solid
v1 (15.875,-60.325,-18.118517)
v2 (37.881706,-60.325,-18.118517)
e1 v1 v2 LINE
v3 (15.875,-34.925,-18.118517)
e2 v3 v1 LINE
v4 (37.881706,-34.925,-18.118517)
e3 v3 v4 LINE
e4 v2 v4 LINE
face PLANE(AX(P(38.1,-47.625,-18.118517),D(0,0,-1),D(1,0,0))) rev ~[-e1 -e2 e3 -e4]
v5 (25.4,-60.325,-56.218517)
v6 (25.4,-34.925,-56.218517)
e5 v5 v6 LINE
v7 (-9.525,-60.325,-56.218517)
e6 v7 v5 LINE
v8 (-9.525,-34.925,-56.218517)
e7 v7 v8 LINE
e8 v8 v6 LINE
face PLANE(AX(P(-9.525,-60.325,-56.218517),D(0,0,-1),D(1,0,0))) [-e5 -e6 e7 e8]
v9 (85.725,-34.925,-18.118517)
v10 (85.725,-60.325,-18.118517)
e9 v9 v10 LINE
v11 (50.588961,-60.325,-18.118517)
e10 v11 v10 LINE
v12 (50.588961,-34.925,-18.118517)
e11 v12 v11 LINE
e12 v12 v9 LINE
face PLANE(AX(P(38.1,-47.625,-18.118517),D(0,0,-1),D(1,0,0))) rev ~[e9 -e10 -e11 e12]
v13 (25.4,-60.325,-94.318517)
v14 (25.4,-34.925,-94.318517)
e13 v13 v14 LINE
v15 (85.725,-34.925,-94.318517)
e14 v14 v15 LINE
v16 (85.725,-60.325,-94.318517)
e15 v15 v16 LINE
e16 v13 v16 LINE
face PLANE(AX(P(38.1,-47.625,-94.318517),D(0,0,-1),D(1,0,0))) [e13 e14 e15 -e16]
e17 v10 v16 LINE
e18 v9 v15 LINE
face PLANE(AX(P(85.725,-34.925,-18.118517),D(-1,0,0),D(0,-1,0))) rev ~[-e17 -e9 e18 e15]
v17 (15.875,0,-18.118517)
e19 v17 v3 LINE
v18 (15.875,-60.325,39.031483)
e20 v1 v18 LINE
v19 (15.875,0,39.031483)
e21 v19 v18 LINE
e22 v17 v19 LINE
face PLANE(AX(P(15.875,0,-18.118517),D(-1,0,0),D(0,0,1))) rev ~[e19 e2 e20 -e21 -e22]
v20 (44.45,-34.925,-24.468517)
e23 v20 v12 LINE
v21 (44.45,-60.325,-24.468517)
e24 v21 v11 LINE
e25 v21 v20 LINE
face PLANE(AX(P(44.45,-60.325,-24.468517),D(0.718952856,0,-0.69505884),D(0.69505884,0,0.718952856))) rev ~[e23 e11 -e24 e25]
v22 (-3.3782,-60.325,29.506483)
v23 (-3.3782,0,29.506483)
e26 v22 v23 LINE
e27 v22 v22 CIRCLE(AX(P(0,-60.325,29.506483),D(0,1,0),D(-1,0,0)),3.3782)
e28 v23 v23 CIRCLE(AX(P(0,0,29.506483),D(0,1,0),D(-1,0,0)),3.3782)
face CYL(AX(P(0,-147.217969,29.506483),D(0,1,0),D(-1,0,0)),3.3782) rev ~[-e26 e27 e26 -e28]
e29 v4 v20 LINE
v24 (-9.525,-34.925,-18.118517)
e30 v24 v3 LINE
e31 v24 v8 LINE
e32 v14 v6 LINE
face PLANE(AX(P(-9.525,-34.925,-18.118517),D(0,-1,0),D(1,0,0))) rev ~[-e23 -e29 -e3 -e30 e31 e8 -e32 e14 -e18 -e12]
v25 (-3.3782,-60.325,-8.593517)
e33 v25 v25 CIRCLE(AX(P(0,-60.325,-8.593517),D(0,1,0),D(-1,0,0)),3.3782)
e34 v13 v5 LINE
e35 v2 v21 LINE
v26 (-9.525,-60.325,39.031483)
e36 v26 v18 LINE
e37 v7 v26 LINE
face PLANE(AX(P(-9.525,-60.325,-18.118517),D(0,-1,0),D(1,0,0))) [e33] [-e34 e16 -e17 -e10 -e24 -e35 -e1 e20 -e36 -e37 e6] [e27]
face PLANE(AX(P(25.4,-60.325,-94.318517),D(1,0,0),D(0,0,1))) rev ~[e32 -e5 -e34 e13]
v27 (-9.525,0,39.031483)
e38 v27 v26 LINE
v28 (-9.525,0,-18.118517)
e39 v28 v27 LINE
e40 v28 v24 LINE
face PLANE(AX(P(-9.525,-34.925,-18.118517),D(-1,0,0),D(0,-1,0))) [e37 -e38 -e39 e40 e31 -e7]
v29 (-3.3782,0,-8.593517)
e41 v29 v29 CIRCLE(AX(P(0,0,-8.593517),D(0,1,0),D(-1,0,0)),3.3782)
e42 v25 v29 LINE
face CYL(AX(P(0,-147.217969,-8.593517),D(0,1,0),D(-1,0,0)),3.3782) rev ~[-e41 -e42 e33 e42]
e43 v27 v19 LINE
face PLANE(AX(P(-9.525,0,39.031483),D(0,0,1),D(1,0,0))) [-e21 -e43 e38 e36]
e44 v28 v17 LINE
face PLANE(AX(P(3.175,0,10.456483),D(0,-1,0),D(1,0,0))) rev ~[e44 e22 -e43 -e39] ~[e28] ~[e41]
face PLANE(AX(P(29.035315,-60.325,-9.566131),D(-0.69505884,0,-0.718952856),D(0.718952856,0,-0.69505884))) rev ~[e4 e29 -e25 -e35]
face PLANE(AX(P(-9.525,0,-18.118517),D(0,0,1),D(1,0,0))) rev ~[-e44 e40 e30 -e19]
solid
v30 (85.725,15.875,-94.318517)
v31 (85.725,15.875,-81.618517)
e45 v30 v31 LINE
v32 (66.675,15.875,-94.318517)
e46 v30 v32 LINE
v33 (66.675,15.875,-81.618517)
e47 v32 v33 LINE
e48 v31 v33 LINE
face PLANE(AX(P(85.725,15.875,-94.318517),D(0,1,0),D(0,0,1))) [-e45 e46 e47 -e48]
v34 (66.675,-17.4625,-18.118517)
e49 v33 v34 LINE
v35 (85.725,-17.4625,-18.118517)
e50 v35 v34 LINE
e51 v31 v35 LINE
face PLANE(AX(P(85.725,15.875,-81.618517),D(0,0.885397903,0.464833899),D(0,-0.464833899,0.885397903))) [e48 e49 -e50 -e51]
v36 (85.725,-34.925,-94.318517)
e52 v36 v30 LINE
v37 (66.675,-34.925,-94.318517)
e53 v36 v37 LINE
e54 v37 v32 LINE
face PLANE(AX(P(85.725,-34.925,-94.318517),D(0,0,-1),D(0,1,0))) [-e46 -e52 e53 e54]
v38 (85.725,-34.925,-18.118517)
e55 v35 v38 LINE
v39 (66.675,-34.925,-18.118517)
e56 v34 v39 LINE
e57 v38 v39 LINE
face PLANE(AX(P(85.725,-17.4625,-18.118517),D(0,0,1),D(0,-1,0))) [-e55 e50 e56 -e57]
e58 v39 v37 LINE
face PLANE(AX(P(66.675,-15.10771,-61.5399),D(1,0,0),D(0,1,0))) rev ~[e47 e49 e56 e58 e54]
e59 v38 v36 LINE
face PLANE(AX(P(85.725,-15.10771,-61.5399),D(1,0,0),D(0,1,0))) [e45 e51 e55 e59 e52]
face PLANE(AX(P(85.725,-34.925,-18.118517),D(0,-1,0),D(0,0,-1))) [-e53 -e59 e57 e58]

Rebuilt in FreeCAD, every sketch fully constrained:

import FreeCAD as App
import Part
import Sketcher
Q = App.Units.Quantity


def add_polygon(sketch, points):
    """Adds a closed chain of lines whose ends are joined by coincident constraints."""
    first, n = sketch.GeometryCount, len(points)
    for a, b in zip(points, points[1:] + points[:1]):
        sketch.addGeometry(Part.LineSegment(App.Vector(*a, 0), App.Vector(*b, 0)), False)
    for i in range(n):
        sketch.addConstraint(Sketcher.Constraint("Coincident", first + i, 2, first + (i + 1) % n, 1))

doc = App.newDocument("Part")
body = doc.addObject("PartDesign::Body", "Body")

# Sketch on XZ plane
sketch1 = body.newObject("Sketcher::SketchObject", "Sketch")
sketch1.AttachmentSupport = (doc.getObject("XZ_Plane"), [""])
sketch1.MapMode = "FlatFace"
add_polygon(sketch1, [(-10, 39), (-10, -18), (16, -18), (16, 39)])  # lines 0-3
sketch1.addConstraint([
    Sketcher.Constraint("Vertical", 0),
    Sketcher.Constraint("Horizontal", 1),
    Sketcher.Constraint("Vertical", 2),
    Sketcher.Constraint("Horizontal", 3),
    Sketcher.Constraint("DistanceX", 1, 1, 1, 2, Q("1 in")),
    Sketcher.Constraint("DistanceY", 0, 2, 0, 1, Q("2.25 in")),
    Sketcher.Constraint("DistanceX", 0, 2, -1, 1, Q("0.375 in")),
    Sketcher.Constraint("DistanceY", 0, 2, -1, 1, Q("18.118517 mm")),
])
pad1 = body.newObject("PartDesign::Pad", "Pad")
pad1.Profile = sketch1
pad1.Length = Q("2.375 in")

# Sketch on XZ plane
sketch2 = body.newObject("Sketcher::SketchObject", "Sketch001")
sketch2.AttachmentSupport = (doc.getObject("XZ_Plane"), [""])
sketch2.MapMode = "FlatFace"
sketch2.AttachmentOffset = App.Placement(App.Vector(0, 0, 2.375 * 25.4), App.Rotation())
sketch2.addGeometry(Part.Circle(App.Vector(0, 29.5, 0), App.Vector(0, 0, 1), 3.4), False)
sketch2.addConstraint([
    Sketcher.Constraint("PointOnObject", 0, 3, -2),
    Sketcher.Constraint("Diameter", 0, Q("0.266 in")),
    Sketcher.Constraint("DistanceY", -1, 1, 0, 3, Q("29.506483 mm")),
])
doc.recompute()
hole = body.newObject("PartDesign::Hole", "Hole")
hole.Profile = sketch2
hole.ThreadType = "None"
hole.Diameter = Q("0.266 in")
hole.DepthType = "ThroughAll"

# Sketch on XZ plane
sketch3 = body.newObject("Sketcher::SketchObject", "Sketch002")
sketch3.AttachmentSupport = (doc.getObject("XZ_Plane"), [""])
sketch3.MapMode = "FlatFace"
sketch3.AttachmentOffset = App.Placement(App.Vector(0, 0, 2.375 * 25.4), App.Rotation())
sketch3.addGeometry(Part.Circle(App.Vector(0, -8.6, 0), App.Vector(0, 0, 1), 3.4), False)
sketch3.addConstraint([
    Sketcher.Constraint("PointOnObject", 0, 3, -2),
    Sketcher.Constraint("Diameter", 0, Q("0.266 in")),
    Sketcher.Constraint("DistanceY", 0, 3, -1, 1, Q("8.593517 mm")),
])
doc.recompute()
hole2 = body.newObject("PartDesign::Hole", "Hole001")
hole2.Profile = sketch3
hole2.ThreadType = "None"
hole2.Diameter = Q("0.266 in")
hole2.DepthType = "ThroughAll"

# Sketch on XY plane
sketch4 = body.newObject("Sketcher::SketchObject", "Sketch003")
sketch4.AttachmentSupport = (doc.getObject("XY_Plane"), [""])
sketch4.MapMode = "FlatFace"
sketch4.AttachmentOffset = App.Placement(App.Vector(0, 0, -18.118517), App.Rotation())
add_polygon(sketch4, [(-10, -60), (-10, -35), (86, -35), (86, -60)])  # lines 0-3
sketch4.addConstraint([
    Sketcher.Constraint("Vertical", 0),
    Sketcher.Constraint("Horizontal", 1),
    Sketcher.Constraint("Vertical", 2),
    Sketcher.Constraint("Horizontal", 3),
    Sketcher.Constraint("DistanceY", 0, 1, 0, 2, Q("1 in")),
    Sketcher.Constraint("DistanceX", 1, 1, 1, 2, Q("3.75 in")),
    Sketcher.Constraint("DistanceX", 0, 2, -1, 1, Q("0.375 in")),
    Sketcher.Constraint("DistanceY", 0, 2, -1, 1, Q("1.375 in")),
])
pad2 = body.newObject("PartDesign::Pad", "Pad001")
pad2.Profile = sketch4
pad2.Length = Q("3 in")
pad2.Reversed = True

# Sketch on XZ plane
sketch5 = body.newObject("Sketcher::SketchObject", "Sketch004")
sketch5.AttachmentSupport = (doc.getObject("XZ_Plane"), [""])
sketch5.MapMode = "FlatFace"
sketch5.AttachmentOffset = App.Placement(App.Vector(0, 0, 2.375 * 25.4), App.Rotation())
add_polygon(sketch5, [(-10, -56), (-10, -94), (25, -94), (25, -56)])  # lines 0-3
sketch5.addConstraint([
    Sketcher.Constraint("Vertical", 0),
    Sketcher.Constraint("Horizontal", 1),
    Sketcher.Constraint("Vertical", 2),
    Sketcher.Constraint("Horizontal", 3),
    Sketcher.Constraint("DistanceY", 0, 2, 0, 1, Q("1.5 in")),
    Sketcher.Constraint("DistanceX", -1, 1, 1, 2, Q("1 in")),
    Sketcher.Constraint("DistanceX", 1, 1, 1, 2, Q("1.375 in")),
    Sketcher.Constraint("DistanceY", 0, 2, -1, 1, Q("94.318517 mm")),
])
pocket1 = body.newObject("PartDesign::Pocket", "Pocket")
pocket1.Profile = sketch5
pocket1.Length = Q("2 in")

# Sketch on XZ plane
sketch6 = body.newObject("Sketcher::SketchObject", "Sketch005")
sketch6.AttachmentSupport = (doc.getObject("XZ_Plane"), [""])
sketch6.MapMode = "FlatFace"
sketch6.AttachmentOffset = App.Placement(App.Vector(0, 0, 2.375 * 25.4), App.Rotation())
add_polygon(sketch6, [(57, -11), (29, -10), (44, -24)])  # lines 0-2
sketch6.addConstraint([
    Sketcher.Constraint("Perpendicular", 1, 2),
    Sketcher.Constraint("DistanceX", -1, 1, 1, 2, Q("1.75 in")),
    Sketcher.Constraint("DistanceY", 0, 2, -1, 1, Q("9.566131 mm")),
    Sketcher.Constraint("DistanceY", 2, 2, -1, 1, Q("11.36368 mm")),
    Sketcher.Constraint("DistanceX", 0, 2, 2, 2, Q("28.08399 mm")),
    Sketcher.Constraint("Distance", 1, Q("21.440467 mm")),
])
pocket2 = body.newObject("PartDesign::Pocket", "Pocket001")
pocket2.Profile = sketch6
pocket2.Length = Q("2 in")
body2 = doc.addObject("PartDesign::Body", "Body001")

# Sketch on YZ plane
sketch7 = body2.newObject("Sketcher::SketchObject", "Sketch006")
sketch7.AttachmentSupport = (doc.getObject("YZ_Plane001"), [""])
sketch7.MapMode = "FlatFace"
sketch7.AttachmentOffset = App.Placement(App.Vector(0, 0, 3.375 * 25.4), App.Rotation())
add_polygon(sketch7, [(-17, -18), (-35, -18), (-35, -94), (16, -94), (16, -82)])  # lines 0-4
sketch7.addConstraint([
    Sketcher.Constraint("Horizontal", 0),
    Sketcher.Constraint("Vertical", 1),
    Sketcher.Constraint("Horizontal", 2),
    Sketcher.Constraint("Vertical", 3),
    Sketcher.Constraint("DistanceX", 2, 1, 2, 2, Q("2 in")),
    Sketcher.Constraint("DistanceY", 1, 2, 1, 1, Q("3 in")),
    Sketcher.Constraint("DistanceY", 3, 1, 3, 2, Q("0.5 in")),
    Sketcher.Constraint("DistanceX", 0, 2, 0, 1, Q("0.6875 in")),
    Sketcher.Constraint("DistanceX", 0, 2, -1, 1, Q("1.375 in")),
    Sketcher.Constraint("DistanceY", 0, 2, -1, 1, Q("18.118517 mm")),
])
pad3 = body2.newObject("PartDesign::Pad", "Pad002")
pad3.Profile = sketch7
pad3.Length = Q("0.75 in")
pad3.Reversed = True

doc.recompute()
